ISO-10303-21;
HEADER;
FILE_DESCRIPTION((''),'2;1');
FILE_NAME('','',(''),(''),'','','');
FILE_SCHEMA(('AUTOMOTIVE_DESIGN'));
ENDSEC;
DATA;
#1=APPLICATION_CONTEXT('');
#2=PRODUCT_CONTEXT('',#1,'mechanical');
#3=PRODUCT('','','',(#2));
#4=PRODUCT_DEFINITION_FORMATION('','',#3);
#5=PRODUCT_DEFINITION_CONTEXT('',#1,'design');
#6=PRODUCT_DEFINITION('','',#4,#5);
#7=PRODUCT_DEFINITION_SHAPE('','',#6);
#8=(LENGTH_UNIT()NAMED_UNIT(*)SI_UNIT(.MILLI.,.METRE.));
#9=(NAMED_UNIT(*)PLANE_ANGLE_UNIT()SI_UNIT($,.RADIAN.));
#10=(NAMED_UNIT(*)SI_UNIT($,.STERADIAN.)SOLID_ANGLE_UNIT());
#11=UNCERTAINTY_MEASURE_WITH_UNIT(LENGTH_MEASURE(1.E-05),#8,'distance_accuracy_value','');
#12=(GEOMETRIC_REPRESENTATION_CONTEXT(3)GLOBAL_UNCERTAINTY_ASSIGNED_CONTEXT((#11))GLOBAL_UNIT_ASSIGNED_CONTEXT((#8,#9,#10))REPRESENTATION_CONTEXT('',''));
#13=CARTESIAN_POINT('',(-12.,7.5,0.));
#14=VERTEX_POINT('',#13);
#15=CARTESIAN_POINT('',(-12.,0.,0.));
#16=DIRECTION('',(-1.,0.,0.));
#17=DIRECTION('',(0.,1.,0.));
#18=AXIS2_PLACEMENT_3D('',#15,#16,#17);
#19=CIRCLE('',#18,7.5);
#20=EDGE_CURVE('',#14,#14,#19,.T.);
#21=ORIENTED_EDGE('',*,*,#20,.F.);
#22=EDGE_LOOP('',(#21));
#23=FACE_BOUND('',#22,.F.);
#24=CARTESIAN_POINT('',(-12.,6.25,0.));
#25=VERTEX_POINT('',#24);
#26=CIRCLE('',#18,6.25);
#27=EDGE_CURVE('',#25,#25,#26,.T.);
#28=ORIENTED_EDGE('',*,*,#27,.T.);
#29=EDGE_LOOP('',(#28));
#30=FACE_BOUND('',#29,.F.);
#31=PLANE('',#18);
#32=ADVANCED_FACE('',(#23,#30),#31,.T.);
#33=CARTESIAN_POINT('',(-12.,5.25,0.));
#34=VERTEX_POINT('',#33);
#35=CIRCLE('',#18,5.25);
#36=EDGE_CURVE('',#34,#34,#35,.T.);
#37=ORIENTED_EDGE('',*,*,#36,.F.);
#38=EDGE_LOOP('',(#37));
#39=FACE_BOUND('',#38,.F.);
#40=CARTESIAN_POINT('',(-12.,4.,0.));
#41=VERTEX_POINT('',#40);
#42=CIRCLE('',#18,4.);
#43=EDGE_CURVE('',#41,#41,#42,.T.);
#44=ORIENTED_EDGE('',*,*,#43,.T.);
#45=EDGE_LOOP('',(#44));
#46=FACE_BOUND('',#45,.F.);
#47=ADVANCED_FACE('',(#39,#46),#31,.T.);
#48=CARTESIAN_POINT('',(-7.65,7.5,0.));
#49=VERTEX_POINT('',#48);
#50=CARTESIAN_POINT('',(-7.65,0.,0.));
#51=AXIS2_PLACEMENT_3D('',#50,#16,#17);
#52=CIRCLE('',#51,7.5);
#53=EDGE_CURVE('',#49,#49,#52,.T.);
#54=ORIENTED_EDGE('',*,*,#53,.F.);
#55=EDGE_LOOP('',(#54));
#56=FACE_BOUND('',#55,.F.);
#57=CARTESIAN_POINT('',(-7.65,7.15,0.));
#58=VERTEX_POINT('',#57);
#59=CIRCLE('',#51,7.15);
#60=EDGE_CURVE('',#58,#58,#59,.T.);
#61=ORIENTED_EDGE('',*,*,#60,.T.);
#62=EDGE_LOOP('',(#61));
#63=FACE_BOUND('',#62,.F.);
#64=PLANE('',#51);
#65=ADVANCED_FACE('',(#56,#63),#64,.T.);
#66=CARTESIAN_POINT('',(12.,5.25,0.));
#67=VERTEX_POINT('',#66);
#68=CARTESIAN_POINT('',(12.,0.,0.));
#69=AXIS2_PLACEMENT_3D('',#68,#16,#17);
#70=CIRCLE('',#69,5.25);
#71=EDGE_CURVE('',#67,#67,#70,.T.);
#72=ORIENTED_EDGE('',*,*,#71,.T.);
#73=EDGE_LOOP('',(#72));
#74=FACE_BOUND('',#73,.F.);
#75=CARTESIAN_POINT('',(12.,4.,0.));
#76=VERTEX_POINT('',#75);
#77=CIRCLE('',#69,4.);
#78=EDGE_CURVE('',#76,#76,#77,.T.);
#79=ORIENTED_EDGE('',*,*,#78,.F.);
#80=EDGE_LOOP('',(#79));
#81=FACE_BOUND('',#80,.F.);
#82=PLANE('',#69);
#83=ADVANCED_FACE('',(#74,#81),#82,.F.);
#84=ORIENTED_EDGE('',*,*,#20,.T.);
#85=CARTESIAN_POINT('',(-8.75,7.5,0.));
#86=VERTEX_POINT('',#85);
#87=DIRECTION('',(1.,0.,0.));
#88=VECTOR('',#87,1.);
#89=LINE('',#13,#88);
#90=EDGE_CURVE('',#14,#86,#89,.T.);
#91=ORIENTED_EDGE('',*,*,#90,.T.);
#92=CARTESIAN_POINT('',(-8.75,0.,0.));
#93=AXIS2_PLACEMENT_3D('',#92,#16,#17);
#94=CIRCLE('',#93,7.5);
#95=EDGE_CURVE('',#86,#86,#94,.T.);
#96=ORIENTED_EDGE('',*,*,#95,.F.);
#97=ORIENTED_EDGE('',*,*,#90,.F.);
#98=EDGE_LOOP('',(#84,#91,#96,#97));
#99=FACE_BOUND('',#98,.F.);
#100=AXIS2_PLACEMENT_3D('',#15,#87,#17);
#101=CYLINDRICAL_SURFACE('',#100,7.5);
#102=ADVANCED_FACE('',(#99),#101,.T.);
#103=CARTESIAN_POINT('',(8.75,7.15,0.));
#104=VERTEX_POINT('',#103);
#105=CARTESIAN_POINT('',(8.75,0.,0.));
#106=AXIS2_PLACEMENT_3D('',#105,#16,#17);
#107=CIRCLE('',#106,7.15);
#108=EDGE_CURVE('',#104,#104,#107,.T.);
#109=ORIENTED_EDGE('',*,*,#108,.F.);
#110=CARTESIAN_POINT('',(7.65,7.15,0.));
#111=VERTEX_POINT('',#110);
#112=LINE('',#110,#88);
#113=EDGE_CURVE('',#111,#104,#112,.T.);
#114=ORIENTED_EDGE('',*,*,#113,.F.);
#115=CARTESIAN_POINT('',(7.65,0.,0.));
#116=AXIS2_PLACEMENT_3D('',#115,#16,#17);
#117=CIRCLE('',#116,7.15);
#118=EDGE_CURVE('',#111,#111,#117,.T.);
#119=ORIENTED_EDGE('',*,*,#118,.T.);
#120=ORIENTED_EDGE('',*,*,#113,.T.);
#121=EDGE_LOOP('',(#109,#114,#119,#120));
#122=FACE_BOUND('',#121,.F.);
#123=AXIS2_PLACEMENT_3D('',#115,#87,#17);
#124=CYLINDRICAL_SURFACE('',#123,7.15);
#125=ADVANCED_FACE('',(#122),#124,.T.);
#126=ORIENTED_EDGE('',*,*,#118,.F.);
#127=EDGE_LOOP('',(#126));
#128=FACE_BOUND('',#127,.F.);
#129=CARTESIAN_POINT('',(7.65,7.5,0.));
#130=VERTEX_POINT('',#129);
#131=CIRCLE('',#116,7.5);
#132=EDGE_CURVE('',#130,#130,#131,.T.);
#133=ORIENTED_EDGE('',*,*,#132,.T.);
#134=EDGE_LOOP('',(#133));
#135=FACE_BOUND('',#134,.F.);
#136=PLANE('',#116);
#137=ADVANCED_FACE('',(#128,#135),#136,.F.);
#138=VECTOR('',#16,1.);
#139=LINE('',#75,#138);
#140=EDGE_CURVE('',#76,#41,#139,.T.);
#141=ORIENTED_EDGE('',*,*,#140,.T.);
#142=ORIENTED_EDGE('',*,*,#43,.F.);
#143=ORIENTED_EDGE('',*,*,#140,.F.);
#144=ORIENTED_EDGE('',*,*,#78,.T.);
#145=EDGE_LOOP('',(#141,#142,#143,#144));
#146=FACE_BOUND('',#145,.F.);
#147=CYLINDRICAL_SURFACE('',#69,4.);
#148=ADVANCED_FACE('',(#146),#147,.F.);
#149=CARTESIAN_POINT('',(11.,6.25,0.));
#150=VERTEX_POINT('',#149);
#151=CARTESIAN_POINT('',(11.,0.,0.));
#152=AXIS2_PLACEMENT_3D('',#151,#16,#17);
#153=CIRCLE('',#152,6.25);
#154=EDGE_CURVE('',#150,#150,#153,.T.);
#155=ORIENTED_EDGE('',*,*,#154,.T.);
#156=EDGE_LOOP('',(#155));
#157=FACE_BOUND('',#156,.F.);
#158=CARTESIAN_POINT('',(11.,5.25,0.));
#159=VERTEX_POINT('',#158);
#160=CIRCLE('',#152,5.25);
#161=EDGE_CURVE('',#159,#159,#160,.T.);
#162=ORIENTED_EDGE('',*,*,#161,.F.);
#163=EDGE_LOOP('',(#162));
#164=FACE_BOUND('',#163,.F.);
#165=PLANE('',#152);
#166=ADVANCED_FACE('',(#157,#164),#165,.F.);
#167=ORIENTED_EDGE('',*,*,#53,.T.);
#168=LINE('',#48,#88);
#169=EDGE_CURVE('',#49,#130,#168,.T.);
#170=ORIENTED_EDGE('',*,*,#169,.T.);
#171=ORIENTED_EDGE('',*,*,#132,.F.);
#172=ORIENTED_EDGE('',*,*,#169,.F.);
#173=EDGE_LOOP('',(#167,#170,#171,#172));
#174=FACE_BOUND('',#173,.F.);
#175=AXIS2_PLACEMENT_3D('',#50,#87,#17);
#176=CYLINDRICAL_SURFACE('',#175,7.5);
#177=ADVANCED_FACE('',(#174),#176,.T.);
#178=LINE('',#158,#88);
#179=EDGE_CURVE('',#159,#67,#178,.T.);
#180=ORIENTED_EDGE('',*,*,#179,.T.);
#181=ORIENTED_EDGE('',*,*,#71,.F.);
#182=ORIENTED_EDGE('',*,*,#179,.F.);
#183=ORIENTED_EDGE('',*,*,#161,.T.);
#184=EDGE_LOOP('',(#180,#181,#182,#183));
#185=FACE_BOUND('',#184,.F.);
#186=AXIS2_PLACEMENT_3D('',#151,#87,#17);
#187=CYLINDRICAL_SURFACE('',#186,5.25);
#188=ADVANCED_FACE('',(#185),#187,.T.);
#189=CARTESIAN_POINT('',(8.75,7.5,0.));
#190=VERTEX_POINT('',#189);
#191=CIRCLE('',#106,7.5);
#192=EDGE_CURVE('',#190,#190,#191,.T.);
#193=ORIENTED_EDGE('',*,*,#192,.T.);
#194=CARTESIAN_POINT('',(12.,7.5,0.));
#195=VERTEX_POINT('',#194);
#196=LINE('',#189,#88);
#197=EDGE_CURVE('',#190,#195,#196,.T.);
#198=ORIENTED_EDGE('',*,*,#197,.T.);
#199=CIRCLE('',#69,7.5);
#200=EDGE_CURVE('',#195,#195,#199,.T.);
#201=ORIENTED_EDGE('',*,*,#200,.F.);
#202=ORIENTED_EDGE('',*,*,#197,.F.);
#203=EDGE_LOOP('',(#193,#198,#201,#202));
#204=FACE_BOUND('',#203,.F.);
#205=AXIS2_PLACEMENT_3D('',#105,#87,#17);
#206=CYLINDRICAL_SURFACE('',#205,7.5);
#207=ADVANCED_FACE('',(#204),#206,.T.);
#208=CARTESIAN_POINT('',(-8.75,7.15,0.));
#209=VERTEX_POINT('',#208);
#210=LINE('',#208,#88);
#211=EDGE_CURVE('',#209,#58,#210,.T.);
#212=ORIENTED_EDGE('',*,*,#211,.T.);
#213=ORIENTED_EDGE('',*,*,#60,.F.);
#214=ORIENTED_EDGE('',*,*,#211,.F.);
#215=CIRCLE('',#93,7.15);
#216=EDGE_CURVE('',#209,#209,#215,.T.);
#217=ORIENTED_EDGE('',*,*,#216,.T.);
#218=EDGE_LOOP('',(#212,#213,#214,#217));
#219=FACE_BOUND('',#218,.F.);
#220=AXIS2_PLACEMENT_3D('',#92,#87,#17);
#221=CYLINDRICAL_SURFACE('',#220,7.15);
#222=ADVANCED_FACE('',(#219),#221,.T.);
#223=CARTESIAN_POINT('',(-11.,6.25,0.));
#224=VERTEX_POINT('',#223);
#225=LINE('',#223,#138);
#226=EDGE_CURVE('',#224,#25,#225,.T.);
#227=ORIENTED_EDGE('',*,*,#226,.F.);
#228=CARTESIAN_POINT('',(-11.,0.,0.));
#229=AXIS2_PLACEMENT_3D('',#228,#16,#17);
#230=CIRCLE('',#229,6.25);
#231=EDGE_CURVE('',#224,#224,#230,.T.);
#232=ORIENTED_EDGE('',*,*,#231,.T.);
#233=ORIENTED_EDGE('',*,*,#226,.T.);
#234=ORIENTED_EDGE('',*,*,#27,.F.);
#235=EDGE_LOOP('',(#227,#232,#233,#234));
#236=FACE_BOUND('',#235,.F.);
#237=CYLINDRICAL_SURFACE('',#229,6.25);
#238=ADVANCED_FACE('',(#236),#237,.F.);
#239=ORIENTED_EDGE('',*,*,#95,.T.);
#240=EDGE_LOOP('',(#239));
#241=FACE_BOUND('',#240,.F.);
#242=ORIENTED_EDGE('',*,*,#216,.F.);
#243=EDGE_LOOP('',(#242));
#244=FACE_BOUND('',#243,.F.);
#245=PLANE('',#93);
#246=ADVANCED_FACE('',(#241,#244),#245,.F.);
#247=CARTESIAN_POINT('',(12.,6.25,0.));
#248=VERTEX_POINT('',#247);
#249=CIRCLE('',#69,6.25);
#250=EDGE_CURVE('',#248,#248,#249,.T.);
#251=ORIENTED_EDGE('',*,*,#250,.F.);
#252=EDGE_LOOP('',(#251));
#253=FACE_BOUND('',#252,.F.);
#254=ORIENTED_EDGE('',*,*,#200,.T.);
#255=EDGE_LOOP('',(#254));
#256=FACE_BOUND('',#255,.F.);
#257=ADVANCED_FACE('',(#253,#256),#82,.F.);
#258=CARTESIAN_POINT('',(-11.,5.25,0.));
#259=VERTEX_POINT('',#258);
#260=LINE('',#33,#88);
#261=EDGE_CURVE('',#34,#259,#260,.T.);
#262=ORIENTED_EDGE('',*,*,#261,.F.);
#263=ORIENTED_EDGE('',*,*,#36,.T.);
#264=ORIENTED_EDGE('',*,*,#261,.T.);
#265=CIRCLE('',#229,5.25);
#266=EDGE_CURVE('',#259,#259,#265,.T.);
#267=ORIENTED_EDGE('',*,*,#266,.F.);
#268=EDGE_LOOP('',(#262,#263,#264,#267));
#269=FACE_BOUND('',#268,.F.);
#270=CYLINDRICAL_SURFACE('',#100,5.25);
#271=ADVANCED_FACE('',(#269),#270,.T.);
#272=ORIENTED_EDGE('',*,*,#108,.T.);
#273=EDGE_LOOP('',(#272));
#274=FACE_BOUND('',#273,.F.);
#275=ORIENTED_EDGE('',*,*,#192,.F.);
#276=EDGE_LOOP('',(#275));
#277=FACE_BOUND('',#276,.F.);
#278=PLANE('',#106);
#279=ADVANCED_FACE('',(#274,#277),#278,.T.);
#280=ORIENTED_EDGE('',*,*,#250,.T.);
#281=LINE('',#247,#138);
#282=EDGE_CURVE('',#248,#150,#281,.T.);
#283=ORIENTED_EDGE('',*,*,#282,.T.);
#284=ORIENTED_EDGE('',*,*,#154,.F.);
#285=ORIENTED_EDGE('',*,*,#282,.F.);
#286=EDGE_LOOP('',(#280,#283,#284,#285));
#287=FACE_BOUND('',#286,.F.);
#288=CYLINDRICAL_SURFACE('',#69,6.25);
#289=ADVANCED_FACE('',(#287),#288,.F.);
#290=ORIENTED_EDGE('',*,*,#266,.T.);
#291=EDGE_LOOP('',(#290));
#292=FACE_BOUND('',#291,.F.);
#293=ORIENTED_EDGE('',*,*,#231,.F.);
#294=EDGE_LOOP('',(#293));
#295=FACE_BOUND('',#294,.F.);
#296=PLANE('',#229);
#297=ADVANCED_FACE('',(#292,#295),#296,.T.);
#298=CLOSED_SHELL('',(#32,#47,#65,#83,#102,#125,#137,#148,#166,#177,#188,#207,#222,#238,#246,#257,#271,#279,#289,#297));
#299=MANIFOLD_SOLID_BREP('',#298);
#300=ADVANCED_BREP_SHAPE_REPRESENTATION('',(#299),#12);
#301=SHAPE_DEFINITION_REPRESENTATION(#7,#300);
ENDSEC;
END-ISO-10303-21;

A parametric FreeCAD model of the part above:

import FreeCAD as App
import Part
import Sketcher
Q = App.Units.Quantity


def add_polygon(sketch, points):
    """Adds a closed chain of lines whose ends are joined by coincident constraints."""
    first, n = sketch.GeometryCount, len(points)
    for a, b in zip(points, points[1:] + points[:1]):
        sketch.addGeometry(Part.LineSegment(App.Vector(*a, 0), App.Vector(*b, 0)), False)
    for i in range(n):
        sketch.addConstraint(Sketcher.Constraint("Coincident", first + i, 2, first + (i + 1) % n, 1))

doc = App.newDocument("Part")
body = doc.addObject("PartDesign::Body", "Body")

# Sketch on XY plane
sketch1 = body.newObject("Sketcher::SketchObject", "Sketch")
sketch1.AttachmentSupport = (doc.getObject("XY_Plane"), [""])
sketch1.MapMode = "FlatFace"
add_polygon(sketch1, [(-8.75, 7.5), (-12, 7.5), (-12, 6.25), (-11, 6.25), (-11, 5.25), (-12, 5.25), (-12, 4), (12, 4), (12, 5.25), (11, 5.25), (11, 6.25), (12, 6.25), (12, 7.5), (8.75, 7.5), (8.75, 7.15), (7.65, 7.15), (7.65, 7.5), (-7.65, 7.5), (-7.65, 7.15), (-8.75, 7.15)])  # lines 0-19
sketch1.addConstraint([
    Sketcher.Constraint("Horizontal", 0),
    Sketcher.Constraint("Vertical", 1),
    Sketcher.Constraint("Horizontal", 2),
    Sketcher.Constraint("Vertical", 3),
    Sketcher.Constraint("Horizontal", 4),
    Sketcher.Constraint("Vertical", 5),
    Sketcher.Constraint("Horizontal", 6),
    Sketcher.Constraint("Vertical", 7),
    Sketcher.Constraint("Horizontal", 8),
    Sketcher.Constraint("Vertical", 9),
    Sketcher.Constraint("Horizontal", 10),
    Sketcher.Constraint("Vertical", 11),
    Sketcher.Constraint("Horizontal", 12),
    Sketcher.Constraint("Vertical", 13),
    Sketcher.Constraint("Horizontal", 14),
    Sketcher.Constraint("Vertical", 15),
    Sketcher.Constraint("Horizontal", 16),
    Sketcher.Constraint("Vertical", 17),
    Sketcher.Constraint("Horizontal", 18),
    Sketcher.Constraint("Vertical", 19),
    Sketcher.Constraint("Symmetric", 4, 2, 7, 2, -2),
    Sketcher.Constraint("Symmetric", 2, 2, 9, 2, -2),
    Sketcher.Constraint("Symmetric", 0, 2, 11, 2, -2),
    Sketcher.Constraint("Symmetric", 14, 2, 17, 2, -2),
    Sketcher.Constraint("Horizontal", 12, 2, 15, 2),
    Sketcher.Constraint("Vertical", 1, 2, 4, 2),
    Sketcher.Constraint("Equal", 0, 12),
    Sketcher.Constraint("Equal", 10, 3),
    Sketcher.Constraint("Equal", 1, 5),
    Sketcher.Constraint("DistanceX", 2, 1, 2, 2, Q("1 mm")),
    Sketcher.Constraint("DistanceX", 6, 1, 6, 2, Q("24 mm")),
    Sketcher.Constraint("DistanceX", 14, 2, 14, 1, Q("1.1 mm")),
    Sketcher.Constraint("DistanceX", 16, 2, 16, 1, Q("15.3 mm")),
    Sketcher.Constraint("DistanceY", -1, 1, 5, 2, Q("4 mm")),
    Sketcher.Constraint("DistanceY", 1, 2, 1, 1, Q("1.25 mm")),
    Sketcher.Constraint("DistanceY", 13, 2, 13, 1, Q("0.35 mm")),
])
revolution = body.newObject("PartDesign::Revolution", "Revolution")
revolution.Profile = sketch1
revolution.ReferenceAxis = (sketch1, ["H_Axis"])
revolution.Angle = 360

doc.recompute()
